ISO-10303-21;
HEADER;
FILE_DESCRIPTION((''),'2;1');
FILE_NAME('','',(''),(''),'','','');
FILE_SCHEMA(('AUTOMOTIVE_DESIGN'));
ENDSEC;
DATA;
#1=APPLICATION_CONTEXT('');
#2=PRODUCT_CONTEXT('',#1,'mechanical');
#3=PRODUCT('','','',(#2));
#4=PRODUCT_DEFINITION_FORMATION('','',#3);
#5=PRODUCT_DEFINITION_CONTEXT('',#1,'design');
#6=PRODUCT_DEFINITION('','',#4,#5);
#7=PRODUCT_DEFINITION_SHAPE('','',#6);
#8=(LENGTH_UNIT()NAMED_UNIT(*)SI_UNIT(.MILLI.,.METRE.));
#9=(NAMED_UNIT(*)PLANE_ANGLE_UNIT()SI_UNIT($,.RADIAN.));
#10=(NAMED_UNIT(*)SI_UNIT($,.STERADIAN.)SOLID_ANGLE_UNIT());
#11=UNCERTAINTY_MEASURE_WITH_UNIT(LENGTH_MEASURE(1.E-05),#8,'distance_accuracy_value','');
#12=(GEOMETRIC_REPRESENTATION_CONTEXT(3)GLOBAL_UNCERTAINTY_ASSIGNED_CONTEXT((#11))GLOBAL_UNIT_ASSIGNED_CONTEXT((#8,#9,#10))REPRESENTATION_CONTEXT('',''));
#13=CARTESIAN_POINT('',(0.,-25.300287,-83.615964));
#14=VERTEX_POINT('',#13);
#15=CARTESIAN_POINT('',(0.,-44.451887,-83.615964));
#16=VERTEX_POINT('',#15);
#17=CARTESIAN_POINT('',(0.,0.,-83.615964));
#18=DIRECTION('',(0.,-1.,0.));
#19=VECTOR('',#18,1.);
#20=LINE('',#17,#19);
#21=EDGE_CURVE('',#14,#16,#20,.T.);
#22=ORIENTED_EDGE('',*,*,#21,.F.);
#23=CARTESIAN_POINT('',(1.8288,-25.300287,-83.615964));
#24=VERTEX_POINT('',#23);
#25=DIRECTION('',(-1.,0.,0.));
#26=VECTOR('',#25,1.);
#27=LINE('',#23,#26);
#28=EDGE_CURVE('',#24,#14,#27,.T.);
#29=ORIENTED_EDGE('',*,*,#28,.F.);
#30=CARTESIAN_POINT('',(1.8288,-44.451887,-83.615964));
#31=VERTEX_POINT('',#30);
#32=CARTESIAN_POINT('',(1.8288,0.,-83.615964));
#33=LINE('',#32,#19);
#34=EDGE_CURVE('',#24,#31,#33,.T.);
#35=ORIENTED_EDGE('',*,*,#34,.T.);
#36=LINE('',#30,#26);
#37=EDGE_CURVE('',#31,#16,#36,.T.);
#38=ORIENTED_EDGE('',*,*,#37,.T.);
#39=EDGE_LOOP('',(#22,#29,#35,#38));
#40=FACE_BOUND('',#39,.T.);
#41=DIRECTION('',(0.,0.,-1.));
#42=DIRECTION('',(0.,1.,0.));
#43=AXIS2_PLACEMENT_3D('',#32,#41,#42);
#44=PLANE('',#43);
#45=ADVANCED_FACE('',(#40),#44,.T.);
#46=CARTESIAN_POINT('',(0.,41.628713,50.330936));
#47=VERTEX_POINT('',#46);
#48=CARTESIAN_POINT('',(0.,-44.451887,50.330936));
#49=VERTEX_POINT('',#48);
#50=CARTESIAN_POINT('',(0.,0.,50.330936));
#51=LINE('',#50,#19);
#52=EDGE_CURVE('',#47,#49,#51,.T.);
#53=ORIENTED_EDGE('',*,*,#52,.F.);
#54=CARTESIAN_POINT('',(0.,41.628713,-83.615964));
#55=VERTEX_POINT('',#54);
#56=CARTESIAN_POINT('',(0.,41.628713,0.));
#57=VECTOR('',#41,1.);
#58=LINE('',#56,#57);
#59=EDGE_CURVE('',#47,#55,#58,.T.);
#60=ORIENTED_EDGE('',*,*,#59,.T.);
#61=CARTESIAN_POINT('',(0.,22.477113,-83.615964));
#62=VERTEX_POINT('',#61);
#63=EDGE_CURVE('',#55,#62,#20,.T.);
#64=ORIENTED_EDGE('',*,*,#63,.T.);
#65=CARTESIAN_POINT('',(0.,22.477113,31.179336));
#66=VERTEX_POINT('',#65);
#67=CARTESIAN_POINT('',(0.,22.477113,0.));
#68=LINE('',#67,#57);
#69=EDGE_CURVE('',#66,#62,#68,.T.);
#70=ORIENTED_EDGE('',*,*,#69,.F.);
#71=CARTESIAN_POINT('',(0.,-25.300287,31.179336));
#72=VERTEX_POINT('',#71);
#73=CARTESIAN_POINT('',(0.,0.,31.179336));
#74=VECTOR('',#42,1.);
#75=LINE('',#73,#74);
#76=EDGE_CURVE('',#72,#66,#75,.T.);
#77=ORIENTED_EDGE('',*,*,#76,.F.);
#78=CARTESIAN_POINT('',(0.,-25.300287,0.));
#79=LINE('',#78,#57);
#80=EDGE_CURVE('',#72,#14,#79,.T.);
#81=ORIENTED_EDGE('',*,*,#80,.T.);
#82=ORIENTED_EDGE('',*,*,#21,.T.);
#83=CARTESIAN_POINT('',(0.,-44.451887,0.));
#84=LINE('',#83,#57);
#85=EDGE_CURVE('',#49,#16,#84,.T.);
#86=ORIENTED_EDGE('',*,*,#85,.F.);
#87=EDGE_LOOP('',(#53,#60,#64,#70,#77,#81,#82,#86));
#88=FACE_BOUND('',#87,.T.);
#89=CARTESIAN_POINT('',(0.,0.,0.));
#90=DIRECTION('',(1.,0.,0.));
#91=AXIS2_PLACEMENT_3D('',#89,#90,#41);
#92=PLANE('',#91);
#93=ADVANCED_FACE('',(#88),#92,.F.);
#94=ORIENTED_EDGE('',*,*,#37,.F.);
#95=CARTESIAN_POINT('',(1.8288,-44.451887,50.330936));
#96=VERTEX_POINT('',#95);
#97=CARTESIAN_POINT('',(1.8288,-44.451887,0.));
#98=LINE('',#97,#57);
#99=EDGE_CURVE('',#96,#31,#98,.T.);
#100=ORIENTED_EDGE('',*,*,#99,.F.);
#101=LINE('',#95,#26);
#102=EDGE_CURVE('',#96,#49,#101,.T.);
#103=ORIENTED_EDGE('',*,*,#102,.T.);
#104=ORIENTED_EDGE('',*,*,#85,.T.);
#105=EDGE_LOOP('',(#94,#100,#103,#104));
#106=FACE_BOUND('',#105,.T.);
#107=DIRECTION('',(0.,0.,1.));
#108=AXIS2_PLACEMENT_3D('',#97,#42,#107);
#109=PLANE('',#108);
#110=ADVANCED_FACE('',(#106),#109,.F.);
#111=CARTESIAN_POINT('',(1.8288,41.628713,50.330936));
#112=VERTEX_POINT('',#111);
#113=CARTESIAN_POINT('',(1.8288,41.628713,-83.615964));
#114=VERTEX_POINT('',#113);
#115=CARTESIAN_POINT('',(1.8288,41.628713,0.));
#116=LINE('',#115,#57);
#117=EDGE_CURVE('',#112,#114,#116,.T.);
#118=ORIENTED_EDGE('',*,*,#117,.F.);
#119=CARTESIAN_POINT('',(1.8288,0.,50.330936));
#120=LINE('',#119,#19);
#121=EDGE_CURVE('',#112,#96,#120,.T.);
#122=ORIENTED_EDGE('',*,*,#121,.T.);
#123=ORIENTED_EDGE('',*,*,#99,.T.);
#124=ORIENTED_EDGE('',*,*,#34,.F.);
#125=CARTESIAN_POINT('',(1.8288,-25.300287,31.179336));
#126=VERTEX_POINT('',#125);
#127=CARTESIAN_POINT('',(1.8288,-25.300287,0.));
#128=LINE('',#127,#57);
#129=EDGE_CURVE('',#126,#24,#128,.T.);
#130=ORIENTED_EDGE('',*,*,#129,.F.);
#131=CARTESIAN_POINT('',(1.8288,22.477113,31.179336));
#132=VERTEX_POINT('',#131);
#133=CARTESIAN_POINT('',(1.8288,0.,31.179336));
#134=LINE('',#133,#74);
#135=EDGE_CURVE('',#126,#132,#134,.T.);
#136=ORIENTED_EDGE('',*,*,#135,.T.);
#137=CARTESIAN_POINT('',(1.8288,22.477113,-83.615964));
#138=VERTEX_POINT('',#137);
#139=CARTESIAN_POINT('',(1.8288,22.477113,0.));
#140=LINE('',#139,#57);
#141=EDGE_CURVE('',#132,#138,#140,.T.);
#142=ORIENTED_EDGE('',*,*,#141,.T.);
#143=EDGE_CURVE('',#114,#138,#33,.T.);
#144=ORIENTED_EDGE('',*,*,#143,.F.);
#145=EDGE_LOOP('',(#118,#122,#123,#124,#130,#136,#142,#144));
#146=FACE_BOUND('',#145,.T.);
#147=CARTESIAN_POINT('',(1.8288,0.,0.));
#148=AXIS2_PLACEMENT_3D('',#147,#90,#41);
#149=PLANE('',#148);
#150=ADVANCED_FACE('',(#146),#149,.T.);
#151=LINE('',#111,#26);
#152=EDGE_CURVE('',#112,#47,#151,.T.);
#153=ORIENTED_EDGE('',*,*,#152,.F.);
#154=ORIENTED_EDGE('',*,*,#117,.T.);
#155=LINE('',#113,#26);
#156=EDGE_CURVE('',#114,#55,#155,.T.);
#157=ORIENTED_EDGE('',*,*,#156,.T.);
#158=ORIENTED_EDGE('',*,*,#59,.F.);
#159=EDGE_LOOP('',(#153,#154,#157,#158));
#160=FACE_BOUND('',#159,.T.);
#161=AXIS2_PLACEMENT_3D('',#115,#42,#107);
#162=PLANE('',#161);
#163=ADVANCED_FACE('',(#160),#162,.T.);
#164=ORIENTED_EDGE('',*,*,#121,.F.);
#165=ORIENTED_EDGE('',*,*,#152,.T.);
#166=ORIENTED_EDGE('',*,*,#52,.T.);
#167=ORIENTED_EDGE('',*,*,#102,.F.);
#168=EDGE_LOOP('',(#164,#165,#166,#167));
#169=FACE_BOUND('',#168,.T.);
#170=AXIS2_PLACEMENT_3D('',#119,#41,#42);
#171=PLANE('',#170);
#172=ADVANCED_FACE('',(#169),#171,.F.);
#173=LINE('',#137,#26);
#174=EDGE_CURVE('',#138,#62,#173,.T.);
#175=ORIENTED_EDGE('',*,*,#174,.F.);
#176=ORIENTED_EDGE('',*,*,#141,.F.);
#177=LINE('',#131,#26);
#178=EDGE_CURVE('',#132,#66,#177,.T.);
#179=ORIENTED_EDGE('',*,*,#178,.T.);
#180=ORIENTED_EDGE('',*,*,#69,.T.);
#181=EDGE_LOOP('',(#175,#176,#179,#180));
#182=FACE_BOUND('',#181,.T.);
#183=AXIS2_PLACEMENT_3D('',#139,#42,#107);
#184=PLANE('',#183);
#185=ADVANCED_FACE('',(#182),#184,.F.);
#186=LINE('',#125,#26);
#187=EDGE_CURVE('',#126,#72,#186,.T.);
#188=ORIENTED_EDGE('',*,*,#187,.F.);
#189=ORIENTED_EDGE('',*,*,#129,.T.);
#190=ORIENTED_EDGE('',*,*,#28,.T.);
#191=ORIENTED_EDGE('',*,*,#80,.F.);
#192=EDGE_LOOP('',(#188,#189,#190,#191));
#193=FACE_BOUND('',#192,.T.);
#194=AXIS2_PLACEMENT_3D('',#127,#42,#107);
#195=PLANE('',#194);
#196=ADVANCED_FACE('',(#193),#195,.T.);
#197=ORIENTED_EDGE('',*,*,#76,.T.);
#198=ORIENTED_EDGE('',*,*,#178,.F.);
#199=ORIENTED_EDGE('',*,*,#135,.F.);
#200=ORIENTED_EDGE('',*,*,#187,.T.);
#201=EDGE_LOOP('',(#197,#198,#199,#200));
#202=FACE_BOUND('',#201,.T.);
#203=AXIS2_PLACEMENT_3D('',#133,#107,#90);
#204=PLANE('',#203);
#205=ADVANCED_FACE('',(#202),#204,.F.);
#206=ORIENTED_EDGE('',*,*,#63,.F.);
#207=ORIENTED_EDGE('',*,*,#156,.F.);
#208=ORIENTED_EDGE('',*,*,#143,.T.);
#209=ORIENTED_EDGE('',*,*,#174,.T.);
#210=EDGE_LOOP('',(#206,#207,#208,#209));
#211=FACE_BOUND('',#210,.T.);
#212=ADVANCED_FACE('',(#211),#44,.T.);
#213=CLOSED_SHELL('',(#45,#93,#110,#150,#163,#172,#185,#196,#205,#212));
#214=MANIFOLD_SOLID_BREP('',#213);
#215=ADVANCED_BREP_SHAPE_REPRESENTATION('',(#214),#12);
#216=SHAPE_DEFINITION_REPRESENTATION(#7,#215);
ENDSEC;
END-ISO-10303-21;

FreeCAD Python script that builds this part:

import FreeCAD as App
import Part
import Sketcher

V = App.Vector
Q = App.Units.Quantity


def add_polygon(sketch, points):
    """Adds a closed chain of lines whose ends are joined by coincident constraints."""
    first, n = sketch.GeometryCount, len(points)
    for a, b in zip(points, points[1:] + points[:1]):
        sketch.addGeometry(Part.LineSegment(App.Vector(*a, 0), App.Vector(*b, 0)), False)
    for i in range(n):
        sketch.addConstraint(Sketcher.Constraint("Coincident", first + i, 2, first + (i + 1) % n, 1))

doc = App.newDocument("Part")
body = doc.addObject("PartDesign::Body", "Body")

# Sketch on YZ plane
sketch1 = body.newObject("Sketcher::SketchObject", "Sketch")
sketch1.AttachmentSupport = (doc.getObject("YZ_Plane"), [""])
sketch1.MapMode = "FlatFace"
add_polygon(sketch1, [(-25.300287, 31.179336), (22.477113, 31.179336), (22.477113, -83.615964), (41.628713, -83.615964), (41.628713, 50.330936), (-44.451887, 50.330936), (-44.451887, -83.615964), (-25.300287, -83.615964)])  # lines 0-7
sketch1.addConstraint([
    Sketcher.Constraint("Horizontal", 0),
    Sketcher.Constraint("Vertical", 1),
    Sketcher.Constraint("Horizontal", 2),
    Sketcher.Constraint("Vertical", 3),
    Sketcher.Constraint("Horizontal", 4),
    Sketcher.Constraint("Vertical", 5),
    Sketcher.Constraint("Horizontal", 6),
    Sketcher.Constraint("Vertical", 7),
    Sketcher.Constraint("Horizontal", 2, 2, 5, 2),
    Sketcher.Constraint("Equal", 2, 6),
    Sketcher.Constraint("DistanceX", 0, 1, 0, 2, Q("1.881 in")),
    Sketcher.Constraint("DistanceX", 2, 1, 2, 2, Q("0.754 in")),
    Sketcher.Constraint("DistanceY", 1, 2, 1, 1, Q("4.5195 in")),
    Sketcher.Constraint("DistanceY", 3, 1, 3, 2, Q("5.2735 in")),
    Sketcher.Constraint("DistanceX", -1, 1, 0, 2, 22.477113),
    Sketcher.Constraint("DistanceY", -1, 1, 0, 2, 31.179336),
])
pad1 = body.newObject("PartDesign::Pad", "Pad")
pad1.Profile = sketch1
pad1.Length = Q("0.072 in")

doc.recompute()
